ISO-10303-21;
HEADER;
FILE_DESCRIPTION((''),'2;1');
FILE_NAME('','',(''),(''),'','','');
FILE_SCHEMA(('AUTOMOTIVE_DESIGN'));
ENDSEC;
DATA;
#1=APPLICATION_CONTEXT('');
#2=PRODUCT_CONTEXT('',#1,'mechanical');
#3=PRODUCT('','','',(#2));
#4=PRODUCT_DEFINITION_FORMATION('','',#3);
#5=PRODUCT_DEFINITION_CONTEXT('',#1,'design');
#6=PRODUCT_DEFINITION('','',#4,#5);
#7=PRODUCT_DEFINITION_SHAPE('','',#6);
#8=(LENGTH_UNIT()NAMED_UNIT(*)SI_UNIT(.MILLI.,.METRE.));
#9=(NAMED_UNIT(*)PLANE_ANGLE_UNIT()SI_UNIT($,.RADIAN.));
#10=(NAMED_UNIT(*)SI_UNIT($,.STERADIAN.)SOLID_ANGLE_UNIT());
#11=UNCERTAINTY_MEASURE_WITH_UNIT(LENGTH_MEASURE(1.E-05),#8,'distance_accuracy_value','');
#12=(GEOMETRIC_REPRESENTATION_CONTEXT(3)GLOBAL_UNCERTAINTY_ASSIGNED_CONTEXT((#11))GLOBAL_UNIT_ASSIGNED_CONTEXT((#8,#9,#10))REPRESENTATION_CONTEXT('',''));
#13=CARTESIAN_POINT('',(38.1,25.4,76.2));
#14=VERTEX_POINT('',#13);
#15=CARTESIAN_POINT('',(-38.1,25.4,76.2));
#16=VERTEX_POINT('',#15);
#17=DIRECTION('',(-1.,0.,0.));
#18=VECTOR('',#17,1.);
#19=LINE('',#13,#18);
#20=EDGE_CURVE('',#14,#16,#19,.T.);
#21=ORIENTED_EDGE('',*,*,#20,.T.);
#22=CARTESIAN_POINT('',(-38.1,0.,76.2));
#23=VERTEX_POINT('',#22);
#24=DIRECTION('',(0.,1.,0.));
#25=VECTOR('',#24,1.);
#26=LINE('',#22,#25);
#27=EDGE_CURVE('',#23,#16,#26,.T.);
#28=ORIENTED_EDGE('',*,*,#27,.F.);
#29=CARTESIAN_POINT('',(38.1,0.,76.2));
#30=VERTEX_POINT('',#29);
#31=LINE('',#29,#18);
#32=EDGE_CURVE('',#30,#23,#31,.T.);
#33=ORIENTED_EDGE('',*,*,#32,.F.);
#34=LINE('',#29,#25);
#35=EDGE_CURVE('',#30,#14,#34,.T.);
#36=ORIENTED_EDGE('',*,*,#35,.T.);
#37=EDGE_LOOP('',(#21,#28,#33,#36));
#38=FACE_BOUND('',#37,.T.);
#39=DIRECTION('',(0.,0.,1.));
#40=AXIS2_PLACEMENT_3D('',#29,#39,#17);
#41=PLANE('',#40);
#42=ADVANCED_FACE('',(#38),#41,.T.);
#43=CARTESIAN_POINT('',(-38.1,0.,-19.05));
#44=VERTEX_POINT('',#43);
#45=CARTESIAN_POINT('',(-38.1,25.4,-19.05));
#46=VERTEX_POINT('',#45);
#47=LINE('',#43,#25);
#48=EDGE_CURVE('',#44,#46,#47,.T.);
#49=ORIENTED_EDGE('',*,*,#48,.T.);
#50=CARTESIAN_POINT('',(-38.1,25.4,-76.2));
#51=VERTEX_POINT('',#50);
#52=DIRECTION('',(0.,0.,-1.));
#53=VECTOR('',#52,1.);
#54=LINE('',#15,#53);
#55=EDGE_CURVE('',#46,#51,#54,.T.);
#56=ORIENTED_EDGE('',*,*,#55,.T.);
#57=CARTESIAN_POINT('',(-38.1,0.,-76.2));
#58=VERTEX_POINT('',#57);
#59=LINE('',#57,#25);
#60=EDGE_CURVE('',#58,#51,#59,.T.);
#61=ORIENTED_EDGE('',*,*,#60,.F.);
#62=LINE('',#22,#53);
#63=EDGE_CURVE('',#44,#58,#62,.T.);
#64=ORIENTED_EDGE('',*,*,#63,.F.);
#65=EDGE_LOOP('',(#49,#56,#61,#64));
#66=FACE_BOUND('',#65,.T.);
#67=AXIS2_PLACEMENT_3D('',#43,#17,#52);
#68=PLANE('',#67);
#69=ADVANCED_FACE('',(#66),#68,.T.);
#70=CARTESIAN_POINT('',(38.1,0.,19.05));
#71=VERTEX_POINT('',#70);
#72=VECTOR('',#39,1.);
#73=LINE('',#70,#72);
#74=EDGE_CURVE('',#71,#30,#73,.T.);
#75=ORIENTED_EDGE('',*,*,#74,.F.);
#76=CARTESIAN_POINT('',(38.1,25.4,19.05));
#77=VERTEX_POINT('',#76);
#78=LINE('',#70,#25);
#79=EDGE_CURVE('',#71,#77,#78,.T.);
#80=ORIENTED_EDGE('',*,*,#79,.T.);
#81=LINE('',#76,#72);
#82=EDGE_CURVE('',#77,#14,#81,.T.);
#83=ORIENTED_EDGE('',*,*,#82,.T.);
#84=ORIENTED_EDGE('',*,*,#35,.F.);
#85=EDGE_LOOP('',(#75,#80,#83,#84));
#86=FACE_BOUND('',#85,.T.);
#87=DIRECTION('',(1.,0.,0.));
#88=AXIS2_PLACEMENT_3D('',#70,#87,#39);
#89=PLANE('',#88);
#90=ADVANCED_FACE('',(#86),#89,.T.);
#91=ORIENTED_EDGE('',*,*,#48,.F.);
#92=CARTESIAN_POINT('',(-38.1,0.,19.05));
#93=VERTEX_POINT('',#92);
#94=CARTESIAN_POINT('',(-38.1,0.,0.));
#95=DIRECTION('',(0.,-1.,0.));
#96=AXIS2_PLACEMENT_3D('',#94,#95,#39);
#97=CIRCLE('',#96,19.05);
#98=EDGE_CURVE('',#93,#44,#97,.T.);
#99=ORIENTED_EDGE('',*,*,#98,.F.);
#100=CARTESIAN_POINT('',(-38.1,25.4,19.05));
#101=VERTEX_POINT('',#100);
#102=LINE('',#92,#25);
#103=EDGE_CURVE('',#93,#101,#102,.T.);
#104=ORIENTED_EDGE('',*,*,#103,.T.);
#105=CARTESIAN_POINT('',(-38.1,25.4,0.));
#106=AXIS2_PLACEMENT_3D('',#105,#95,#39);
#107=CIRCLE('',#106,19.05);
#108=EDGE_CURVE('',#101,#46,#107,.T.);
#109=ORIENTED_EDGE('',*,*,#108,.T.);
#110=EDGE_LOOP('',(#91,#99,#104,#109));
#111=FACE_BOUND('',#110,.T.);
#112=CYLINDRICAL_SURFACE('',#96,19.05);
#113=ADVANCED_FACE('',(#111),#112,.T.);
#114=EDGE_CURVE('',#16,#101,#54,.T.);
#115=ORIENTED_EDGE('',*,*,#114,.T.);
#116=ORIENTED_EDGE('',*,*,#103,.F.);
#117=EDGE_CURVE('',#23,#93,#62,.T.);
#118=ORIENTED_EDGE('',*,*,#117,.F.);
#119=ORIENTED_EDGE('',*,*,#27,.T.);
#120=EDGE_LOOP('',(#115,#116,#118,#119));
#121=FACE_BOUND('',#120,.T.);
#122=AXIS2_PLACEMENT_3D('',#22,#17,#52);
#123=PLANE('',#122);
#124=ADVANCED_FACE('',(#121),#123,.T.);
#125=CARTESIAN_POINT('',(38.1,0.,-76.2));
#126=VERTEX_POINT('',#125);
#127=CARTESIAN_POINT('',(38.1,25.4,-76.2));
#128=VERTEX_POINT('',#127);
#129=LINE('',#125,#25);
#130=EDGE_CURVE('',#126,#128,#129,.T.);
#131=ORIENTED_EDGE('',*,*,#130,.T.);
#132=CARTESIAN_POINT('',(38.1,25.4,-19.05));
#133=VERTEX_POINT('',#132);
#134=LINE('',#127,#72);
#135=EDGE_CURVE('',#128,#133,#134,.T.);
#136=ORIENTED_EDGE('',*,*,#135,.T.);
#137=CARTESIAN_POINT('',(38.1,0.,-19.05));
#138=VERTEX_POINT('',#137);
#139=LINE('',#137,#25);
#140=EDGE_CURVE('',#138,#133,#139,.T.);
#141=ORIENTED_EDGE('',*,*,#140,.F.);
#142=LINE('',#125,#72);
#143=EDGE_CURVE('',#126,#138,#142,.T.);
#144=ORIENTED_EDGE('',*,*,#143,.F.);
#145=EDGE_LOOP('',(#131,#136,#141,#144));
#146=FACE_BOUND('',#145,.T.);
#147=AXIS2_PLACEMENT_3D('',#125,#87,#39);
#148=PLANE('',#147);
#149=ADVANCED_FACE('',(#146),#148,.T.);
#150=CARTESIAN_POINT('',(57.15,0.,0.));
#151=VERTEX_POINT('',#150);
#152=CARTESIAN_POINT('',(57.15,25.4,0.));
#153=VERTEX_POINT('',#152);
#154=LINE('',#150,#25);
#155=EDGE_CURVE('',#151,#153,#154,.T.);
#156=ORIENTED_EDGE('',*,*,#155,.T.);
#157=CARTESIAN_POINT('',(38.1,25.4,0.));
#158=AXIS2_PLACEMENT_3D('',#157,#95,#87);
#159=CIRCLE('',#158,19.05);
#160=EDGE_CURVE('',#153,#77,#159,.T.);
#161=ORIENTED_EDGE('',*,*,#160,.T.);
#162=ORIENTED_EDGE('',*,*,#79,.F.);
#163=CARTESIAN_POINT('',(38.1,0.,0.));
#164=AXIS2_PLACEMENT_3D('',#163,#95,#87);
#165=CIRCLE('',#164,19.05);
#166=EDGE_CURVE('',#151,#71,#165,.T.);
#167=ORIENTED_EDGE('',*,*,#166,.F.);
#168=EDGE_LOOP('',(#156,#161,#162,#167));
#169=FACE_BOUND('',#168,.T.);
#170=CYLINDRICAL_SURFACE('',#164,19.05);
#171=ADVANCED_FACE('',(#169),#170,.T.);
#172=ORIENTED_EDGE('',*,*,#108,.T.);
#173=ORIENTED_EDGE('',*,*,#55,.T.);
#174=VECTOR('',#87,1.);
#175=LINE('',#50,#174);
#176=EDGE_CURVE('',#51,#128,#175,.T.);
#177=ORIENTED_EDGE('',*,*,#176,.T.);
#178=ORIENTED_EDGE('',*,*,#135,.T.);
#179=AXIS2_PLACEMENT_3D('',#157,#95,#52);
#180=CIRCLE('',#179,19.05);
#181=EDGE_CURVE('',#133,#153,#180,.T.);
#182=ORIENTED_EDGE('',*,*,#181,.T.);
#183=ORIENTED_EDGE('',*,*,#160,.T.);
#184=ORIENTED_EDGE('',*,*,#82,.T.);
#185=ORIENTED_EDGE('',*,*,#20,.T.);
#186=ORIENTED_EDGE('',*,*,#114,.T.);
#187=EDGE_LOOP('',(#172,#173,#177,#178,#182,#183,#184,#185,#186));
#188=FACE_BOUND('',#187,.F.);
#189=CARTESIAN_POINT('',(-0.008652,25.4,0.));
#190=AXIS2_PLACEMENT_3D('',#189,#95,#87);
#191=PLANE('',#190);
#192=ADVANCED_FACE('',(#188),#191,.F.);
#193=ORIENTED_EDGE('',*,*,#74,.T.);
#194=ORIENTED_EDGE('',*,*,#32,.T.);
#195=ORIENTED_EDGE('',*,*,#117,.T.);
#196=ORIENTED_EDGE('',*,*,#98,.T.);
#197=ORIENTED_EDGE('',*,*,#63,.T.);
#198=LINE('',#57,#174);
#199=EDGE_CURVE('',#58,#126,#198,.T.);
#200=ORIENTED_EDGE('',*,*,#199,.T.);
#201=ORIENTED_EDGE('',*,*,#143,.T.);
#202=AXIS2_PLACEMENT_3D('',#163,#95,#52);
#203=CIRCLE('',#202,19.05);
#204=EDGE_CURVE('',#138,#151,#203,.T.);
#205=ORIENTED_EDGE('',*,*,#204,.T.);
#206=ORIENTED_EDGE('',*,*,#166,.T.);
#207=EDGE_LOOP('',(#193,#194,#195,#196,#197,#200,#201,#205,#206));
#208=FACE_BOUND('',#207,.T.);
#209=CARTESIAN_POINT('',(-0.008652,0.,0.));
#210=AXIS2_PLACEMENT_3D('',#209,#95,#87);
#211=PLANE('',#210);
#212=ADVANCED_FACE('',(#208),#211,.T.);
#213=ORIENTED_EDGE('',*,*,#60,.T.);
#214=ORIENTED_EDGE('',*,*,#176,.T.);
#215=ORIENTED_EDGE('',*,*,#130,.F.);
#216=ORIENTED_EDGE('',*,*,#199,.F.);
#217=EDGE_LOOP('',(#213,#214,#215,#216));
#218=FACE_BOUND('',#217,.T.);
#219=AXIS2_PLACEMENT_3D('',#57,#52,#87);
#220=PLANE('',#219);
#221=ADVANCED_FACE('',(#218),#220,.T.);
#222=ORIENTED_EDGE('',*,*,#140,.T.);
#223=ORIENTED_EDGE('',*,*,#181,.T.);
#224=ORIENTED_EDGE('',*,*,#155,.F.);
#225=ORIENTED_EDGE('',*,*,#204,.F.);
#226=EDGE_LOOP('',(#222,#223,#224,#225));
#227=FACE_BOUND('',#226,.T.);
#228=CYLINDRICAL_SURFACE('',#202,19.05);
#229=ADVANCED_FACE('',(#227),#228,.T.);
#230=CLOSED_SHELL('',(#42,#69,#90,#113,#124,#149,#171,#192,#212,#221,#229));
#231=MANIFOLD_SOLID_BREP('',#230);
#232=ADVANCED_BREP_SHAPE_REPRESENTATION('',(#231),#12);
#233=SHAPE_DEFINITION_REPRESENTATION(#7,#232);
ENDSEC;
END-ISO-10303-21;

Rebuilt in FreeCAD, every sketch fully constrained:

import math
import FreeCAD as App
import Part
import Sketcher

V = App.Vector
Q = App.Units.Quantity

doc = App.newDocument("Part")
body = doc.addObject("PartDesign::Body", "Body")

# Sketch on XZ plane
sketch1 = body.newObject("Sketcher::SketchObject", "Sketch")
sketch1.AttachmentSupport = (doc.getObject("XZ_Plane"), [""])
sketch1.MapMode = "FlatFace"
sketch1.addGeometry([
    Part.LineSegment(V(38.1, 19.05, 0), V(38.1, 76.2, 0)),  # 0
    Part.LineSegment(V(38.1, 76.2, 0), V(-38.1, 76.2, 0)),  # 1
    Part.LineSegment(V(-38.1, 76.2, 0), V(-38.1, 19.05, 0)),  # 2
    Part.ArcOfCircle(Part.Circle(V(-38.1, 0, 0), V(0, 0, 1), 19.05), math.radians(90), math.radians(270)),  # 3
    Part.LineSegment(V(-38.1, -19.05, 0), V(-38.1, -76.2, 0)),  # 4
    Part.LineSegment(V(-38.1, -76.2, 0), V(38.1, -76.2, 0)),  # 5
    Part.LineSegment(V(38.1, -76.2, 0), V(38.1, -19.05, 0)),  # 6
    Part.ArcOfCircle(Part.Circle(V(38.1, 0, 0), V(0, 0, 1), 19.05), math.radians(-90), math.radians(0)),  # 7
    Part.ArcOfCircle(Part.Circle(V(38.1, 0, 0), V(0, 0, 1), 19.05), math.radians(0), math.radians(90)),  # 8
], False)
sketch1.addConstraint([
    Sketcher.Constraint("Coincident", 0, 2, 1, 1),
    Sketcher.Constraint("Coincident", 1, 2, 2, 1),
    Sketcher.Constraint("Coincident", 2, 2, 3, 1),
    Sketcher.Constraint("Coincident", 3, 2, 4, 1),
    Sketcher.Constraint("Coincident", 4, 2, 5, 1),
    Sketcher.Constraint("Coincident", 5, 2, 6, 1),
    Sketcher.Constraint("Coincident", 6, 2, 7, 1),
    Sketcher.Constraint("Tangent", 7, 2, 8, 1),
    Sketcher.Constraint("Coincident", 8, 2, 0, 1),
    Sketcher.Constraint("Vertical", 0),
    Sketcher.Constraint("Horizontal", 1),
    Sketcher.Constraint("Vertical", 2),
    Sketcher.Constraint("Vertical", 4),
    Sketcher.Constraint("Horizontal", 5),
    Sketcher.Constraint("Vertical", 6),
    Sketcher.Constraint("Equal", 3, 7),
    Sketcher.Constraint("Equal", 7, 8),
    Sketcher.Constraint("Symmetric", 3, 3, 7, 3, -1, 1),
    Sketcher.Constraint("Symmetric", 0, 2, 4, 2, -1, 1),
    Sketcher.Constraint("Symmetric", 3, 2, 6, 2, -2),
    Sketcher.Constraint("PointOnObject", 7, 2, -1),
    Sketcher.Constraint("Vertical", 8, 3, 0, 2),
    Sketcher.Constraint("Vertical", 3, 3, 1, 2),
    Sketcher.Constraint("DistanceX", 1, 2, 1, 1, Q("3 in")),
    Sketcher.Constraint("Radius", 3, Q("0.75 in")),
    Sketcher.Constraint("DistanceY", -1, 1, 0, 2, Q("3 in")),
])
pad1 = body.newObject("PartDesign::Pad", "Pad")
pad1.Profile = sketch1
pad1.Length = Q("1 in")
pad1.Reversed = True

doc.recompute()
